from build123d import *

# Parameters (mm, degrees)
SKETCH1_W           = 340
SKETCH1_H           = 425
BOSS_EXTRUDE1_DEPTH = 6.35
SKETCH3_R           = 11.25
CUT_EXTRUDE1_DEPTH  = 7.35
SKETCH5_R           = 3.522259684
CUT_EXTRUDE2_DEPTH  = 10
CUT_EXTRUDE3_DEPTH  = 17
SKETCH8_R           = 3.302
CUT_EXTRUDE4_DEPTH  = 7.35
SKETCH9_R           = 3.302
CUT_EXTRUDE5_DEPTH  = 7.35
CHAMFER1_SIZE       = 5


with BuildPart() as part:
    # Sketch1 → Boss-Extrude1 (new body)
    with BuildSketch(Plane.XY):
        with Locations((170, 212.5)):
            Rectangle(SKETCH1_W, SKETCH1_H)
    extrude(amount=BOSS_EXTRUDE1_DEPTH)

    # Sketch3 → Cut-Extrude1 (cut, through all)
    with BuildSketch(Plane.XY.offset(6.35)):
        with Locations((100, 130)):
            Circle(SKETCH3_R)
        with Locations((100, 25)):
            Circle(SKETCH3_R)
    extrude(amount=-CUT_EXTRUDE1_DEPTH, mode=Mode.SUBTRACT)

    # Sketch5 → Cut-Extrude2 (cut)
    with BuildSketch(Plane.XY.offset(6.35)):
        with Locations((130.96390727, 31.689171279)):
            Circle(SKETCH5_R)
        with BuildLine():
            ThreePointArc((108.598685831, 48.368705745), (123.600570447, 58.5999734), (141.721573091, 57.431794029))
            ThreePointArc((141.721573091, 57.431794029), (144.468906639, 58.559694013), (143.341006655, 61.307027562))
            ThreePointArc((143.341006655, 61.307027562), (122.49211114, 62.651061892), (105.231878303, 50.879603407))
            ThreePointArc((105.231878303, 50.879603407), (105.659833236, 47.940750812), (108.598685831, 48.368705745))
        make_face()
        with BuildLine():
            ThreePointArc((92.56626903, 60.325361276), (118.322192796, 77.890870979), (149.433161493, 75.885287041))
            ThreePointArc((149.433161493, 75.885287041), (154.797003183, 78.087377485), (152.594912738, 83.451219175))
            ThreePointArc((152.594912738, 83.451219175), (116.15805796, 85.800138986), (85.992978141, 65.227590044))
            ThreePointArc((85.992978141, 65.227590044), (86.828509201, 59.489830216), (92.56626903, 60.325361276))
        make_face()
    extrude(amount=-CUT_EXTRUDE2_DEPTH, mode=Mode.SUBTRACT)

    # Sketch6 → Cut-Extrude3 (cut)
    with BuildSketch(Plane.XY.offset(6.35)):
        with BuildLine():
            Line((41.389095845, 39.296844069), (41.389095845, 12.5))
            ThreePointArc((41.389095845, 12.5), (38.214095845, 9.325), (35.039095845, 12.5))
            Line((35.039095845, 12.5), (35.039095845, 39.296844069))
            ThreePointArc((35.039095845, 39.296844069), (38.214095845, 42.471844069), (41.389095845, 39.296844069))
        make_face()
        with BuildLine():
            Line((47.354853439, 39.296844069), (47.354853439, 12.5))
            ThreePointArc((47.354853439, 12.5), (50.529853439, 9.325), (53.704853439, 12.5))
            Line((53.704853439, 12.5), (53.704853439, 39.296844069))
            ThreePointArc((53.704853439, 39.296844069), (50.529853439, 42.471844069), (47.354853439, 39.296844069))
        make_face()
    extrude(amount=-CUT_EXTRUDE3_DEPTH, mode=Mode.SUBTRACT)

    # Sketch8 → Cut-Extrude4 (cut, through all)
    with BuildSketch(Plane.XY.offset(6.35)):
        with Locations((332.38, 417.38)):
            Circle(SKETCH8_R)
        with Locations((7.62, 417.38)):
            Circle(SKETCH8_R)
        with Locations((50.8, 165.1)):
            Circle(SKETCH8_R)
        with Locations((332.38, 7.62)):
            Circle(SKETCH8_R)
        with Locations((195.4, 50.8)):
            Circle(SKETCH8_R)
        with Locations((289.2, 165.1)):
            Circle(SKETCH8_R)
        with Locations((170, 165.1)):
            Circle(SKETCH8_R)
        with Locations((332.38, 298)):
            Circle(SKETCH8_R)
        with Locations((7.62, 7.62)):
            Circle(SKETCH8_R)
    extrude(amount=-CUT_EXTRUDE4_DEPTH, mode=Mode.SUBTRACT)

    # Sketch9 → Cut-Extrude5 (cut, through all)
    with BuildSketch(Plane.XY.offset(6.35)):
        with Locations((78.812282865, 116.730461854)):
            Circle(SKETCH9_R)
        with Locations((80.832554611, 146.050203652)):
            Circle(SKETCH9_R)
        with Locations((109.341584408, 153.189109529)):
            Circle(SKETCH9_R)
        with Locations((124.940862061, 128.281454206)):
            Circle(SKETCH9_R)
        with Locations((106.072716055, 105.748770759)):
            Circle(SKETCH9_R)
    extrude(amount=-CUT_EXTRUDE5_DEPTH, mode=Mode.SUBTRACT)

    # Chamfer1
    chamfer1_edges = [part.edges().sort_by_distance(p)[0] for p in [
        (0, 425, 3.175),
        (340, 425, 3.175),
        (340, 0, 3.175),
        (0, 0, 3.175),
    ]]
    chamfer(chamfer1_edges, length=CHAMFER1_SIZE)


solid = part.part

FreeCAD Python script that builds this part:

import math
import FreeCAD as App
import Part
import Sketcher

V = App.Vector


def edges_at(feature, points):
    """Names of the edges that pass closest to the given points."""
    edges = feature.Shape.Edges
    near = lambda p: min(range(len(edges)), key=lambda i: edges[i].distToShape(Part.Vertex(*p))[0])
    return sorted({f"Edge{near(p) + 1}" for p in points})

doc = App.newDocument("Part")
body = doc.addObject("PartDesign::Body", "Body")

# Sketch on XY plane
sketch1 = doc.addObject("Sketcher::SketchObject", "Sketch")
body.addObject(sketch1)
sketch1.AttachmentSupport = (doc.XY_Plane, [""])
sketch1.MapMode = "FlatFace"
sketch1.addGeometry([
    Part.LineSegment(V(0, 425, 0), V(0, 0, 0)),
    Part.LineSegment(V(0, 0, 0), V(340, 0, 0)),
    Part.LineSegment(V(340, 0, 0), V(340, 425, 0)),
    Part.LineSegment(V(340, 425, 0), V(0, 425, 0)),
], False)
sketch1.addConstraint([
    Sketcher.Constraint("Coincident", 0, 2, 1, 1),
    Sketcher.Constraint("Coincident", 1, 2, 2, 1),
    Sketcher.Constraint("Coincident", 2, 2, 3, 1),
    Sketcher.Constraint("Coincident", 3, 2, 0, 1),
    Sketcher.Constraint("Vertical", 0),
    Sketcher.Constraint("Horizontal", 1),
    Sketcher.Constraint("Vertical", 2),
    Sketcher.Constraint("Horizontal", 3),
    Sketcher.Constraint("Coincident", 0, 2, -1, 1),
    Sketcher.Constraint("DistanceX", 1, 1, 1, 2, 340.0),
    Sketcher.Constraint("DistanceY", 0, 2, 0, 1, 425.0),
])
pad1 = doc.addObject("PartDesign::Pad", "Pad")
body.addObject(pad1)
pad1.Profile = sketch1
pad1.Length = 6.35

# Sketch on XY plane
sketch2 = doc.addObject("Sketcher::SketchObject", "Sketch001")
body.addObject(sketch2)
sketch2.AttachmentSupport = (doc.XY_Plane, [""])
sketch2.MapMode = "FlatFace"
sketch2.AttachmentOffset = App.Placement(V(0, 0, 6.35), App.Rotation())
sketch2.addGeometry([
    Part.Circle(V(100, 130, 0), V(0, 0, 1), 11.25),
    Part.Circle(V(100, 25, 0), V(0, 0, 1), 11.25),
], False)
sketch2.addConstraint([
    Sketcher.Constraint("Equal", 0, 1),
    Sketcher.Constraint("Vertical", 0, 3, 1, 3),
    Sketcher.Constraint("Diameter", 0, 22.5),
    Sketcher.Constraint("DistanceX", -1, 1, 0, 3, 100.0),
    Sketcher.Constraint("DistanceY", -1, 1, 0, 3, 130.0),
    Sketcher.Constraint("DistanceY", -1, 1, 1, 3, 25.0),
])
pocket1 = doc.addObject("PartDesign::Pocket", "Pocket")
body.addObject(pocket1)
pocket1.Profile = sketch2
pocket1.Type = "ThroughAll"

# Sketch on XY plane
sketch3 = doc.addObject("Sketcher::SketchObject", "Sketch002")
body.addObject(sketch3)
sketch3.AttachmentSupport = (doc.XY_Plane, [""])
sketch3.MapMode = "FlatFace"
sketch3.AttachmentOffset = App.Placement(V(0, 0, 6.35), App.Rotation())
sketch3.addGeometry([
    Part.Circle(V(130.963907, 31.689171, 0), V(0, 0, 1), 3.52226),  # 0
    Part.ArcOfCircle(Part.Circle(V(130.963907, 31.689171, 0), V(0, 0, 1), 27.9), math.radians(67.320284), math.radians(143.285161)),  # 1
    Part.ArcOfCircle(Part.Circle(V(142.53129, 59.369411, 0), V(0, 0, 1), 2.1), math.radians(-112.679716), math.radians(67.320284)),  # 2
    Part.ArcOfCircle(Part.Circle(V(130.963907, 31.689171, 0), V(0, 0, 1), 32.1), math.radians(67.320284), math.radians(143.285161)),  # 3
    Part.ArcOfCircle(Part.Circle(V(106.915282, 49.624155, 0), V(0, 0, 1), 2.1), math.radians(143.285161), math.radians(323.285161)),  # 4
    Part.ArcOfCircle(Part.Circle(V(130.963907, 31.689171, 0), V(0, 0, 1), 47.9), math.radians(67.320284), math.radians(143.285161)),  # 5
    Part.ArcOfCircle(Part.Circle(V(151.014037, 79.668253, 0), V(0, 0, 1), 4.1), math.radians(-112.679716), math.radians(67.320284)),  # 6
    Part.ArcOfCircle(Part.Circle(V(130.963907, 31.689171, 0), V(0, 0, 1), 56.1), math.radians(67.320284), math.radians(143.285161)),  # 7
    Part.ArcOfCircle(Part.Circle(V(89.279624, 62.776476, 0), V(0, 0, 1), 4.1), math.radians(143.285161), math.radians(323.285161)),  # 8
], False)
sketch3.addConstraint([
    Sketcher.Constraint("Tangent", 1, 1, 2, 1),
    Sketcher.Constraint("Tangent", 2, 2, 3, 1),
    Sketcher.Constraint("Tangent", 3, 2, 4, 1),
    Sketcher.Constraint("Tangent", 4, 2, 1, 2),
    Sketcher.Constraint("Tangent", 5, 1, 6, 1),
    Sketcher.Constraint("Tangent", 6, 2, 7, 1),
    Sketcher.Constraint("Tangent", 7, 2, 8, 1),
    Sketcher.Constraint("Tangent", 8, 2, 5, 2),
    Sketcher.Constraint("Coincident", 1, 3, 0, 3),
    Sketcher.Constraint("Coincident", 3, 3, 0, 3),
    Sketcher.Constraint("Coincident", 5, 3, 0, 3),
    Sketcher.Constraint("Coincident", 7, 3, 0, 3),
    Sketcher.Constraint("Radius", 1, 27.9),
    Sketcher.Constraint("Radius", 2, 2.1),
    Sketcher.Constraint("Radius", 5, 47.9),
    Sketcher.Constraint("Radius", 6, 4.1),
    Sketcher.Constraint("Diameter", 0, 7.044519),
    Sketcher.Constraint("DistanceX", 5, 3, 2, 2, 12.377099),
    Sketcher.Constraint("DistanceX", 7, 2, 3, 2, 19.2389),
    Sketcher.Constraint("DistanceY", -1, 1, 0, 3, 31.689171),
    Sketcher.Constraint("DistanceX", -1, 1, 2, 3, 142.53129),
    Sketcher.Constraint("DistanceX", -1, 1, 3, 2, 105.231878),
    Sketcher.Constraint("DistanceX", -1, 1, 5, 1, 149.433161),
])
pocket2 = doc.addObject("PartDesign::Pocket", "Pocket001")
body.addObject(pocket2)
pocket2.Profile = sketch3
pocket2.Length = 10

# Sketch on XY plane
sketch4 = doc.addObject("Sketcher::SketchObject", "Sketch003")
body.addObject(sketch4)
sketch4.AttachmentSupport = (doc.XY_Plane, [""])
sketch4.MapMode = "FlatFace"
sketch4.AttachmentOffset = App.Placement(V(0, 0, 6.35), App.Rotation())
sketch4.addGeometry([
    Part.LineSegment(V(41.389096, 12.5, 0), V(41.389096, 39.296844, 0)),  # 0
    Part.ArcOfCircle(Part.Circle(V(38.214096, 39.296844, 0), V(0, 0, 1), 3.175), math.radians(0), math.radians(180)),  # 1
    Part.LineSegment(V(35.039096, 39.296844, 0), V(35.039096, 12.5, 0)),  # 2
    Part.ArcOfCircle(Part.Circle(V(38.214096, 12.5, 0), V(0, 0, 1), 3.175), math.radians(180), math.radians(360)),  # 3
    Part.LineSegment(V(47.354853, 39.296844, 0), V(47.354853, 12.5, 0)),  # 4
    Part.ArcOfCircle(Part.Circle(V(50.529853, 12.5, 0), V(0, 0, 1), 3.175), math.radians(180), math.radians(360)),  # 5
    Part.LineSegment(V(53.704853, 12.5, 0), V(53.704853, 39.296844, 0)),  # 6
    Part.ArcOfCircle(Part.Circle(V(50.529853, 39.296844, 0), V(0, 0, 1), 3.175), math.radians(0), math.radians(180)),  # 7
], False)
sketch4.addConstraint([
    Sketcher.Constraint("Tangent", 0, 2, 1, 1),
    Sketcher.Constraint("Tangent", 1, 2, 2, 1),
    Sketcher.Constraint("Tangent", 2, 2, 3, 1),
    Sketcher.Constraint("Tangent", 3, 2, 0, 1),
    Sketcher.Constraint("Tangent", 4, 2, 5, 1),
    Sketcher.Constraint("Tangent", 5, 2, 6, 1),
    Sketcher.Constraint("Tangent", 6, 2, 7, 1),
    Sketcher.Constraint("Tangent", 7, 2, 4, 1),
    Sketcher.Constraint("Vertical", 0),
    Sketcher.Constraint("Vertical", 2),
    Sketcher.Constraint("Vertical", 4),
    Sketcher.Constraint("Vertical", 6),
    Sketcher.Constraint("Equal", 3, 5),
    Sketcher.Constraint("Horizontal", 3, 3, 5, 3),
    Sketcher.Constraint("Horizontal", 1, 3, 7, 3),
    Sketcher.Constraint("Radius", 1, 3.175),
    Sketcher.Constraint("DistanceY", -1, 1, 3, 3, 12.5),
    Sketcher.Constraint("DistanceY", 0, 1, 0, 2, 26.796844),
    Sketcher.Constraint("DistanceX", -1, 1, 1, 3, 38.214096),
    Sketcher.Constraint("DistanceX", -1, 1, 5, 3, 50.529853),
])
pocket3 = doc.addObject("PartDesign::Pocket", "Pocket002")
body.addObject(pocket3)
pocket3.Profile = sketch4
pocket3.Length = 17

# Sketch on XY plane
sketch5 = doc.addObject("Sketcher::SketchObject", "Sketch004")
body.addObject(sketch5)
sketch5.AttachmentSupport = (doc.XY_Plane, [""])
sketch5.MapMode = "FlatFace"
sketch5.AttachmentOffset = App.Placement(V(0, 0, 6.35), App.Rotation())
sketch5.addGeometry([
    Part.Circle(V(332.38, 417.38, 0), V(0, 0, 1), 3.302),  # 0
    Part.Circle(V(7.62, 417.38, 0), V(0, 0, 1), 3.302),  # 1
    Part.Circle(V(50.8, 165.1, 0), V(0, 0, 1), 3.302),  # 2
    Part.Circle(V(332.38, 7.62, 0), V(0, 0, 1), 3.302),  # 3
    Part.Circle(V(195.4, 50.8, 0), V(0, 0, 1), 3.302),  # 4
    Part.Circle(V(289.2, 165.1, 0), V(0, 0, 1), 3.302),  # 5
    Part.Circle(V(170, 165.1, 0), V(0, 0, 1), 3.302),  # 6
    Part.Circle(V(332.38, 298, 0), V(0, 0, 1), 3.302),  # 7
    Part.Circle(V(7.62, 7.62, 0), V(0, 0, 1), 3.302),  # 8
], False)
sketch5.addConstraint([
    Sketcher.Constraint("Equal", 0, 1),
    Sketcher.Constraint("Equal", 1, 2),
    Sketcher.Constraint("Equal", 2, 3),
    Sketcher.Constraint("Equal", 3, 4),
    Sketcher.Constraint("Equal", 4, 5),
    Sketcher.Constraint("Equal", 5, 6),
    Sketcher.Constraint("Equal", 6, 7),
    Sketcher.Constraint("Equal", 7, 8),
    Sketcher.Constraint("Horizontal", 0, 3, 1, 3),
    Sketcher.Constraint("Horizontal", 2, 3, 5, 3),
    Sketcher.Constraint("Horizontal", 5, 3, 6, 3),
    Sketcher.Constraint("Horizontal", 3, 3, 8, 3),
    Sketcher.Constraint("Vertical", 0, 3, 3, 3),
    Sketcher.Constraint("Vertical", 3, 3, 7, 3),
    Sketcher.Constraint("Vertical", 1, 3, 8, 3),
    Sketcher.Constraint("Diameter", 0, 6.604),
    Sketcher.Constraint("DistanceX", -1, 1, 6, 3, 170.0),
    Sketcher.Constraint("DistanceY", -1, 1, 7, 3, 298.0),
    Sketcher.Constraint("DistanceX", -1, 1, 2, 3, 50.8),
    Sketcher.Constraint("DistanceY", -1, 1, 2, 3, 165.1),
    Sketcher.Constraint("DistanceX", -1, 1, 4, 3, 195.4),
    Sketcher.Constraint("DistanceY", -1, 1, 4, 3, 50.8),
    Sketcher.Constraint("DistanceX", -1, 1, 5, 3, 289.2),
    Sketcher.Constraint("DistanceX", -1, 1, 0, 3, 332.38),
    Sketcher.Constraint("DistanceY", -1, 1, 0, 3, 417.38),
    Sketcher.Constraint("DistanceX", -1, 1, 1, 3, 7.62),
    Sketcher.Constraint("DistanceY", -1, 1, 3, 3, 7.62),
])
pocket4 = doc.addObject("PartDesign::Pocket", "Pocket003")
body.addObject(pocket4)
pocket4.Profile = sketch5
pocket4.Type = "ThroughAll"

# Sketch on XY plane
sketch6 = doc.addObject("Sketcher::SketchObject", "Sketch005")
body.addObject(sketch6)
sketch6.AttachmentSupport = (doc.XY_Plane, [""])
sketch6.MapMode = "FlatFace"
sketch6.AttachmentOffset = App.Placement(V(0, 0, 6.35), App.Rotation())
sketch6.addGeometry([
    Part.Circle(V(78.812283, 116.730462, 0), V(0, 0, 1), 3.302),  # 0
    Part.Circle(V(80.832555, 146.050204, 0), V(0, 0, 1), 3.302),  # 1
    Part.Circle(V(109.341584, 153.18911, 0), V(0, 0, 1), 3.302),  # 2
    Part.Circle(V(124.940862, 128.281454, 0), V(0, 0, 1), 3.302),  # 3
    Part.Circle(V(106.072716, 105.748771, 0), V(0, 0, 1), 3.302),  # 4
], False)
sketch6.addConstraint([
    Sketcher.Constraint("Equal", 0, 1),
    Sketcher.Constraint("Equal", 1, 2),
    Sketcher.Constraint("Equal", 2, 3),
    Sketcher.Constraint("Equal", 3, 4),
    Sketcher.Constraint("Diameter", 0, 6.604),
    Sketcher.Constraint("DistanceX", 0, 3, 2, 3, 30.529302),
    Sketcher.Constraint("DistanceY", -1, 1, 0, 3, 116.730462),
    Sketcher.Constraint("DistanceY", -1, 1, 2, 3, 153.18911),
    Sketcher.Constraint("DistanceY", -1, 1, 4, 3, 105.748771),
    Sketcher.Constraint("DistanceX", 0, 3, 1, 3, 2.020272),
    Sketcher.Constraint("DistanceY", 0, 3, 1, 3, 29.319742),
    Sketcher.Constraint("DistanceX", 0, 3, 3, 3, 46.128579),
    Sketcher.Constraint("DistanceY", 3, 3, 1, 3, 17.768749),
    Sketcher.Constraint("DistanceX", 4, 3, 2, 3, 3.268868),
    Sketcher.Constraint("DistanceX", -1, 1, 0, 3, 78.812283),
])
pocket5 = doc.addObject("PartDesign::Pocket", "Pocket004")
body.addObject(pocket5)
pocket5.Profile = sketch6
pocket5.Type = "ThroughAll"
doc.recompute()

chamfer = doc.addObject("PartDesign::Chamfer", "Chamfer")
body.addObject(chamfer)
chamfer.Base = (pocket5, edges_at(pocket5, [
    (0, 425, 3.175),
    (340, 425, 3.175),
    (340, 0, 3.175),
    (0, 0, 3.175),
]))
chamfer.Size = 5

doc.recompute()
